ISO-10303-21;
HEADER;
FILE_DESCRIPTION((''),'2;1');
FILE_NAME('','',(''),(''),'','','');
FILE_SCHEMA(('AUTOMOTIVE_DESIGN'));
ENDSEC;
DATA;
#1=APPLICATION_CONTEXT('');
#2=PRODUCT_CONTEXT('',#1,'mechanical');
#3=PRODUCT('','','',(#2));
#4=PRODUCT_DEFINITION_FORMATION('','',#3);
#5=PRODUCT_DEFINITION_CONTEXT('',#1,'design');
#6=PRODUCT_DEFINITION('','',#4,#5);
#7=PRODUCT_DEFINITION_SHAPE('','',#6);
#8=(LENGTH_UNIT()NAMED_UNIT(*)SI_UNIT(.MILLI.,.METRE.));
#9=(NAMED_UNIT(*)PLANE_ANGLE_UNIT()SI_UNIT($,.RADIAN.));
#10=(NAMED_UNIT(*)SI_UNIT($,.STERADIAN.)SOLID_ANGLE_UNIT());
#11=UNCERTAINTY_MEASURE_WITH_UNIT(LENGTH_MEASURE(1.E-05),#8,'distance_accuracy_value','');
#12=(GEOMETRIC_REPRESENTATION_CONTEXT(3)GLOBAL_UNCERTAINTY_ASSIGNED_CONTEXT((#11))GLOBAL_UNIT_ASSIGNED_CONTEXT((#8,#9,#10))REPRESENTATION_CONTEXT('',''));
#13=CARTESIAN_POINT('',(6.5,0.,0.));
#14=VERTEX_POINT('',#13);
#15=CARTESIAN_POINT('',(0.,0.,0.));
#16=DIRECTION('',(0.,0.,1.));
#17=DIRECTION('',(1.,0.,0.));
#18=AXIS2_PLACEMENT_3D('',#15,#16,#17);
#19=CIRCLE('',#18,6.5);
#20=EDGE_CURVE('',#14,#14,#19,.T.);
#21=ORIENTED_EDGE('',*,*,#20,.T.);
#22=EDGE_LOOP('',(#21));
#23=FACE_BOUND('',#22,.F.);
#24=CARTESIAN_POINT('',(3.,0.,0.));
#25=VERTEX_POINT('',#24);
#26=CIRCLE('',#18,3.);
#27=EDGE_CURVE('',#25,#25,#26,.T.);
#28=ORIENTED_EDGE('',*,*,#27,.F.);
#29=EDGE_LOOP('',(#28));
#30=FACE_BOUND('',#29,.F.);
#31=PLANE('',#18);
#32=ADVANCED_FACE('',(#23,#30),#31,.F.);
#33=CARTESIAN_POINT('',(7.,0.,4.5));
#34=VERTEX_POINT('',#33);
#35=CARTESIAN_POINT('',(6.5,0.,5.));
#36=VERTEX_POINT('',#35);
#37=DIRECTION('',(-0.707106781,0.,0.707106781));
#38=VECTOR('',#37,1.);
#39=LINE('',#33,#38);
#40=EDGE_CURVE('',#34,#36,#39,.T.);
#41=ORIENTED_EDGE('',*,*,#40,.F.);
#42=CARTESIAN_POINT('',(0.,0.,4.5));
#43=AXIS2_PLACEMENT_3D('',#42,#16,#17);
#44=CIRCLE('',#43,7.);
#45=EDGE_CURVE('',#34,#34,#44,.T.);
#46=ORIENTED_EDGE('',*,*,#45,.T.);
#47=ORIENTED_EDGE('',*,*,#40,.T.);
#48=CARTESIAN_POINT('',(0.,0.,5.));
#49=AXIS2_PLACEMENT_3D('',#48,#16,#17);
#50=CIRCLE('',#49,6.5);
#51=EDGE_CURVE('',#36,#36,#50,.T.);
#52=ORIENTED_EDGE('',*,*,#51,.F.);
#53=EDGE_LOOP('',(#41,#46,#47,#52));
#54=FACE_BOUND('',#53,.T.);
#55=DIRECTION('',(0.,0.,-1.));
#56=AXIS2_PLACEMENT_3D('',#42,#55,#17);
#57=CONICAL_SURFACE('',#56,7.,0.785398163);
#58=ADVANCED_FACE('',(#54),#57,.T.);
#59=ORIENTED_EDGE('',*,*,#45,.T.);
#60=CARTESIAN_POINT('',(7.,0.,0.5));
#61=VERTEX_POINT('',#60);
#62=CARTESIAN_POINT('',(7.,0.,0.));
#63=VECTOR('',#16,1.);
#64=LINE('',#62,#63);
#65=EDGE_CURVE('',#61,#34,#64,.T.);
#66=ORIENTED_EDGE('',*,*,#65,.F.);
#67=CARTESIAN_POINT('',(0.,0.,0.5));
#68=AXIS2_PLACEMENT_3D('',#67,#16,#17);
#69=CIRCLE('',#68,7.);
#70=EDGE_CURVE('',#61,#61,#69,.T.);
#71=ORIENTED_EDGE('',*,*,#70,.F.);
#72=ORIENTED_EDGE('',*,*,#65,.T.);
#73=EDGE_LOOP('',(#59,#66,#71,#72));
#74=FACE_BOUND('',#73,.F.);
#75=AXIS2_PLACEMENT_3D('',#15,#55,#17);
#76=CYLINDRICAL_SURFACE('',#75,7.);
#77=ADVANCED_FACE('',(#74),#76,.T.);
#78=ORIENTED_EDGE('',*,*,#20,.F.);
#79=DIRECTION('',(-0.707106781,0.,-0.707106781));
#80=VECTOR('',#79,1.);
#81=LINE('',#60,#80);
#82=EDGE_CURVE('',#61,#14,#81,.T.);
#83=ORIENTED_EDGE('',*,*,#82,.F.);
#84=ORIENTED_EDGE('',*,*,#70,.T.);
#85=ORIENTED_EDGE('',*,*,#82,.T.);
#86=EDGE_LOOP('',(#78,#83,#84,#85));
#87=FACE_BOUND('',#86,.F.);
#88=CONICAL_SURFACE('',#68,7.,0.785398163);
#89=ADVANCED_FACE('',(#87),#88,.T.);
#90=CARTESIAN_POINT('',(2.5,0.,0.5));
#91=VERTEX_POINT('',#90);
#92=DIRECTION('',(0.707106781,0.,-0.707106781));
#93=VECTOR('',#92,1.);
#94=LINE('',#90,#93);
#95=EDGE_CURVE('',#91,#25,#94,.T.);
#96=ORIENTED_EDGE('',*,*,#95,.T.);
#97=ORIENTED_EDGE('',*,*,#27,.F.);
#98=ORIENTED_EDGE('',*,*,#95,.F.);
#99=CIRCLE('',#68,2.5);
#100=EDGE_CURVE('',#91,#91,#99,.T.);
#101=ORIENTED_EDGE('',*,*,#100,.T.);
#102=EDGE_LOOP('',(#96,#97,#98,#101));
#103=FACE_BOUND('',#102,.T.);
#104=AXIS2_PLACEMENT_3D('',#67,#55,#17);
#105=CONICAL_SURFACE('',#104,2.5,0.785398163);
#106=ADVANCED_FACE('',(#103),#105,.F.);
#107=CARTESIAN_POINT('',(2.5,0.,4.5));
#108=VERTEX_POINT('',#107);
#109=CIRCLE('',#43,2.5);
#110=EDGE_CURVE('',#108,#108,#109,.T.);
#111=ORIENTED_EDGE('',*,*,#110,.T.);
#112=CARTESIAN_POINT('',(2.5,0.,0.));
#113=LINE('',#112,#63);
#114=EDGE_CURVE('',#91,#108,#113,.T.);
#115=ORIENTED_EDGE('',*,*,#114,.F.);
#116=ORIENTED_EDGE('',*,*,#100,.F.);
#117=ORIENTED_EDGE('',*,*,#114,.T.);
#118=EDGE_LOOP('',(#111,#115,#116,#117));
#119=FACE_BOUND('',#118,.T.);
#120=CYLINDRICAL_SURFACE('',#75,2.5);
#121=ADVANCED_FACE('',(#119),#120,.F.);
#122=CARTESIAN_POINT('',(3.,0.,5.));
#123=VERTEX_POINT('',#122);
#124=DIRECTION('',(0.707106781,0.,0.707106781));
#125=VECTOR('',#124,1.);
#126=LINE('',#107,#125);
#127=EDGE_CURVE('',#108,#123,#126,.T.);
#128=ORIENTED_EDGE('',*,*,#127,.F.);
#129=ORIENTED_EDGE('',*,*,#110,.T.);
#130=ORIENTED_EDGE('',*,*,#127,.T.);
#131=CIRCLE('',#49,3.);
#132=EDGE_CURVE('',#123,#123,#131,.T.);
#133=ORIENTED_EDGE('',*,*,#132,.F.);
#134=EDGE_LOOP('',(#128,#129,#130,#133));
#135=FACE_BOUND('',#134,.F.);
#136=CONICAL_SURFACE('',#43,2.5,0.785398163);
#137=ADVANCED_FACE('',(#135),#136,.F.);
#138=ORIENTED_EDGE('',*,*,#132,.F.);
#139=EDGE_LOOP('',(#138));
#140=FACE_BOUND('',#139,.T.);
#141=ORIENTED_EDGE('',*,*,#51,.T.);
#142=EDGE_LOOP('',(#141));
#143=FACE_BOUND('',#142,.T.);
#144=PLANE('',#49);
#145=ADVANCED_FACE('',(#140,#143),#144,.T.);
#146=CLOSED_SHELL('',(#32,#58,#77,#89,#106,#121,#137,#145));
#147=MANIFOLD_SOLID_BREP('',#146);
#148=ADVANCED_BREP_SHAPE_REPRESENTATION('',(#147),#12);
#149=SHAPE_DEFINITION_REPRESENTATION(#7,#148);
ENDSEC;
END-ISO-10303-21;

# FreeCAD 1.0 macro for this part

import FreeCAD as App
import Part
import Sketcher
Q = App.Units.Quantity


def edges_at(feature, points):
    """Names of the edges that pass closest to the given points."""
    edges = feature.Shape.Edges
    near = lambda p: min(range(len(edges)), key=lambda i: edges[i].distToShape(Part.Vertex(*p))[0])
    return sorted({f"Edge{near(p) + 1}" for p in points})

doc = App.newDocument("Part")
body = doc.addObject("PartDesign::Body", "Body")

# Sketch on XY plane
sketch1 = body.newObject("Sketcher::SketchObject", "Sketch")
sketch1.AttachmentSupport = (doc.getObject("XY_Plane"), [""])
sketch1.MapMode = "FlatFace"
sketch1.addGeometry([
    Part.Circle(App.Vector(0, 0, 0), App.Vector(0, 0, 1), 7),
    Part.Circle(App.Vector(0, 0, 0), App.Vector(0, 0, 1), 2.5),
], False)
sketch1.addConstraint([
    Sketcher.Constraint("Coincident", 0, 3, -1, 1),
    Sketcher.Constraint("Coincident", 1, 3, -1, 1),
    Sketcher.Constraint("Diameter", 0, Q("14 mm")),
    Sketcher.Constraint("Diameter", 1, Q("5 mm")),
])
pad1 = body.newObject("PartDesign::Pad", "Pad")
pad1.Profile = sketch1
pad1.Length = 5
doc.recompute()

chamfer = body.newObject("PartDesign::Chamfer", "Chamfer")
chamfer.Base = (pad1, edges_at(pad1, [
    (-7, 0, 0),
    (-7, 0, 5),
    (-2.5, 0, 0),
    (-2.5, 0, 5),
]))
chamfer.Size = 0.5

doc.recompute()
